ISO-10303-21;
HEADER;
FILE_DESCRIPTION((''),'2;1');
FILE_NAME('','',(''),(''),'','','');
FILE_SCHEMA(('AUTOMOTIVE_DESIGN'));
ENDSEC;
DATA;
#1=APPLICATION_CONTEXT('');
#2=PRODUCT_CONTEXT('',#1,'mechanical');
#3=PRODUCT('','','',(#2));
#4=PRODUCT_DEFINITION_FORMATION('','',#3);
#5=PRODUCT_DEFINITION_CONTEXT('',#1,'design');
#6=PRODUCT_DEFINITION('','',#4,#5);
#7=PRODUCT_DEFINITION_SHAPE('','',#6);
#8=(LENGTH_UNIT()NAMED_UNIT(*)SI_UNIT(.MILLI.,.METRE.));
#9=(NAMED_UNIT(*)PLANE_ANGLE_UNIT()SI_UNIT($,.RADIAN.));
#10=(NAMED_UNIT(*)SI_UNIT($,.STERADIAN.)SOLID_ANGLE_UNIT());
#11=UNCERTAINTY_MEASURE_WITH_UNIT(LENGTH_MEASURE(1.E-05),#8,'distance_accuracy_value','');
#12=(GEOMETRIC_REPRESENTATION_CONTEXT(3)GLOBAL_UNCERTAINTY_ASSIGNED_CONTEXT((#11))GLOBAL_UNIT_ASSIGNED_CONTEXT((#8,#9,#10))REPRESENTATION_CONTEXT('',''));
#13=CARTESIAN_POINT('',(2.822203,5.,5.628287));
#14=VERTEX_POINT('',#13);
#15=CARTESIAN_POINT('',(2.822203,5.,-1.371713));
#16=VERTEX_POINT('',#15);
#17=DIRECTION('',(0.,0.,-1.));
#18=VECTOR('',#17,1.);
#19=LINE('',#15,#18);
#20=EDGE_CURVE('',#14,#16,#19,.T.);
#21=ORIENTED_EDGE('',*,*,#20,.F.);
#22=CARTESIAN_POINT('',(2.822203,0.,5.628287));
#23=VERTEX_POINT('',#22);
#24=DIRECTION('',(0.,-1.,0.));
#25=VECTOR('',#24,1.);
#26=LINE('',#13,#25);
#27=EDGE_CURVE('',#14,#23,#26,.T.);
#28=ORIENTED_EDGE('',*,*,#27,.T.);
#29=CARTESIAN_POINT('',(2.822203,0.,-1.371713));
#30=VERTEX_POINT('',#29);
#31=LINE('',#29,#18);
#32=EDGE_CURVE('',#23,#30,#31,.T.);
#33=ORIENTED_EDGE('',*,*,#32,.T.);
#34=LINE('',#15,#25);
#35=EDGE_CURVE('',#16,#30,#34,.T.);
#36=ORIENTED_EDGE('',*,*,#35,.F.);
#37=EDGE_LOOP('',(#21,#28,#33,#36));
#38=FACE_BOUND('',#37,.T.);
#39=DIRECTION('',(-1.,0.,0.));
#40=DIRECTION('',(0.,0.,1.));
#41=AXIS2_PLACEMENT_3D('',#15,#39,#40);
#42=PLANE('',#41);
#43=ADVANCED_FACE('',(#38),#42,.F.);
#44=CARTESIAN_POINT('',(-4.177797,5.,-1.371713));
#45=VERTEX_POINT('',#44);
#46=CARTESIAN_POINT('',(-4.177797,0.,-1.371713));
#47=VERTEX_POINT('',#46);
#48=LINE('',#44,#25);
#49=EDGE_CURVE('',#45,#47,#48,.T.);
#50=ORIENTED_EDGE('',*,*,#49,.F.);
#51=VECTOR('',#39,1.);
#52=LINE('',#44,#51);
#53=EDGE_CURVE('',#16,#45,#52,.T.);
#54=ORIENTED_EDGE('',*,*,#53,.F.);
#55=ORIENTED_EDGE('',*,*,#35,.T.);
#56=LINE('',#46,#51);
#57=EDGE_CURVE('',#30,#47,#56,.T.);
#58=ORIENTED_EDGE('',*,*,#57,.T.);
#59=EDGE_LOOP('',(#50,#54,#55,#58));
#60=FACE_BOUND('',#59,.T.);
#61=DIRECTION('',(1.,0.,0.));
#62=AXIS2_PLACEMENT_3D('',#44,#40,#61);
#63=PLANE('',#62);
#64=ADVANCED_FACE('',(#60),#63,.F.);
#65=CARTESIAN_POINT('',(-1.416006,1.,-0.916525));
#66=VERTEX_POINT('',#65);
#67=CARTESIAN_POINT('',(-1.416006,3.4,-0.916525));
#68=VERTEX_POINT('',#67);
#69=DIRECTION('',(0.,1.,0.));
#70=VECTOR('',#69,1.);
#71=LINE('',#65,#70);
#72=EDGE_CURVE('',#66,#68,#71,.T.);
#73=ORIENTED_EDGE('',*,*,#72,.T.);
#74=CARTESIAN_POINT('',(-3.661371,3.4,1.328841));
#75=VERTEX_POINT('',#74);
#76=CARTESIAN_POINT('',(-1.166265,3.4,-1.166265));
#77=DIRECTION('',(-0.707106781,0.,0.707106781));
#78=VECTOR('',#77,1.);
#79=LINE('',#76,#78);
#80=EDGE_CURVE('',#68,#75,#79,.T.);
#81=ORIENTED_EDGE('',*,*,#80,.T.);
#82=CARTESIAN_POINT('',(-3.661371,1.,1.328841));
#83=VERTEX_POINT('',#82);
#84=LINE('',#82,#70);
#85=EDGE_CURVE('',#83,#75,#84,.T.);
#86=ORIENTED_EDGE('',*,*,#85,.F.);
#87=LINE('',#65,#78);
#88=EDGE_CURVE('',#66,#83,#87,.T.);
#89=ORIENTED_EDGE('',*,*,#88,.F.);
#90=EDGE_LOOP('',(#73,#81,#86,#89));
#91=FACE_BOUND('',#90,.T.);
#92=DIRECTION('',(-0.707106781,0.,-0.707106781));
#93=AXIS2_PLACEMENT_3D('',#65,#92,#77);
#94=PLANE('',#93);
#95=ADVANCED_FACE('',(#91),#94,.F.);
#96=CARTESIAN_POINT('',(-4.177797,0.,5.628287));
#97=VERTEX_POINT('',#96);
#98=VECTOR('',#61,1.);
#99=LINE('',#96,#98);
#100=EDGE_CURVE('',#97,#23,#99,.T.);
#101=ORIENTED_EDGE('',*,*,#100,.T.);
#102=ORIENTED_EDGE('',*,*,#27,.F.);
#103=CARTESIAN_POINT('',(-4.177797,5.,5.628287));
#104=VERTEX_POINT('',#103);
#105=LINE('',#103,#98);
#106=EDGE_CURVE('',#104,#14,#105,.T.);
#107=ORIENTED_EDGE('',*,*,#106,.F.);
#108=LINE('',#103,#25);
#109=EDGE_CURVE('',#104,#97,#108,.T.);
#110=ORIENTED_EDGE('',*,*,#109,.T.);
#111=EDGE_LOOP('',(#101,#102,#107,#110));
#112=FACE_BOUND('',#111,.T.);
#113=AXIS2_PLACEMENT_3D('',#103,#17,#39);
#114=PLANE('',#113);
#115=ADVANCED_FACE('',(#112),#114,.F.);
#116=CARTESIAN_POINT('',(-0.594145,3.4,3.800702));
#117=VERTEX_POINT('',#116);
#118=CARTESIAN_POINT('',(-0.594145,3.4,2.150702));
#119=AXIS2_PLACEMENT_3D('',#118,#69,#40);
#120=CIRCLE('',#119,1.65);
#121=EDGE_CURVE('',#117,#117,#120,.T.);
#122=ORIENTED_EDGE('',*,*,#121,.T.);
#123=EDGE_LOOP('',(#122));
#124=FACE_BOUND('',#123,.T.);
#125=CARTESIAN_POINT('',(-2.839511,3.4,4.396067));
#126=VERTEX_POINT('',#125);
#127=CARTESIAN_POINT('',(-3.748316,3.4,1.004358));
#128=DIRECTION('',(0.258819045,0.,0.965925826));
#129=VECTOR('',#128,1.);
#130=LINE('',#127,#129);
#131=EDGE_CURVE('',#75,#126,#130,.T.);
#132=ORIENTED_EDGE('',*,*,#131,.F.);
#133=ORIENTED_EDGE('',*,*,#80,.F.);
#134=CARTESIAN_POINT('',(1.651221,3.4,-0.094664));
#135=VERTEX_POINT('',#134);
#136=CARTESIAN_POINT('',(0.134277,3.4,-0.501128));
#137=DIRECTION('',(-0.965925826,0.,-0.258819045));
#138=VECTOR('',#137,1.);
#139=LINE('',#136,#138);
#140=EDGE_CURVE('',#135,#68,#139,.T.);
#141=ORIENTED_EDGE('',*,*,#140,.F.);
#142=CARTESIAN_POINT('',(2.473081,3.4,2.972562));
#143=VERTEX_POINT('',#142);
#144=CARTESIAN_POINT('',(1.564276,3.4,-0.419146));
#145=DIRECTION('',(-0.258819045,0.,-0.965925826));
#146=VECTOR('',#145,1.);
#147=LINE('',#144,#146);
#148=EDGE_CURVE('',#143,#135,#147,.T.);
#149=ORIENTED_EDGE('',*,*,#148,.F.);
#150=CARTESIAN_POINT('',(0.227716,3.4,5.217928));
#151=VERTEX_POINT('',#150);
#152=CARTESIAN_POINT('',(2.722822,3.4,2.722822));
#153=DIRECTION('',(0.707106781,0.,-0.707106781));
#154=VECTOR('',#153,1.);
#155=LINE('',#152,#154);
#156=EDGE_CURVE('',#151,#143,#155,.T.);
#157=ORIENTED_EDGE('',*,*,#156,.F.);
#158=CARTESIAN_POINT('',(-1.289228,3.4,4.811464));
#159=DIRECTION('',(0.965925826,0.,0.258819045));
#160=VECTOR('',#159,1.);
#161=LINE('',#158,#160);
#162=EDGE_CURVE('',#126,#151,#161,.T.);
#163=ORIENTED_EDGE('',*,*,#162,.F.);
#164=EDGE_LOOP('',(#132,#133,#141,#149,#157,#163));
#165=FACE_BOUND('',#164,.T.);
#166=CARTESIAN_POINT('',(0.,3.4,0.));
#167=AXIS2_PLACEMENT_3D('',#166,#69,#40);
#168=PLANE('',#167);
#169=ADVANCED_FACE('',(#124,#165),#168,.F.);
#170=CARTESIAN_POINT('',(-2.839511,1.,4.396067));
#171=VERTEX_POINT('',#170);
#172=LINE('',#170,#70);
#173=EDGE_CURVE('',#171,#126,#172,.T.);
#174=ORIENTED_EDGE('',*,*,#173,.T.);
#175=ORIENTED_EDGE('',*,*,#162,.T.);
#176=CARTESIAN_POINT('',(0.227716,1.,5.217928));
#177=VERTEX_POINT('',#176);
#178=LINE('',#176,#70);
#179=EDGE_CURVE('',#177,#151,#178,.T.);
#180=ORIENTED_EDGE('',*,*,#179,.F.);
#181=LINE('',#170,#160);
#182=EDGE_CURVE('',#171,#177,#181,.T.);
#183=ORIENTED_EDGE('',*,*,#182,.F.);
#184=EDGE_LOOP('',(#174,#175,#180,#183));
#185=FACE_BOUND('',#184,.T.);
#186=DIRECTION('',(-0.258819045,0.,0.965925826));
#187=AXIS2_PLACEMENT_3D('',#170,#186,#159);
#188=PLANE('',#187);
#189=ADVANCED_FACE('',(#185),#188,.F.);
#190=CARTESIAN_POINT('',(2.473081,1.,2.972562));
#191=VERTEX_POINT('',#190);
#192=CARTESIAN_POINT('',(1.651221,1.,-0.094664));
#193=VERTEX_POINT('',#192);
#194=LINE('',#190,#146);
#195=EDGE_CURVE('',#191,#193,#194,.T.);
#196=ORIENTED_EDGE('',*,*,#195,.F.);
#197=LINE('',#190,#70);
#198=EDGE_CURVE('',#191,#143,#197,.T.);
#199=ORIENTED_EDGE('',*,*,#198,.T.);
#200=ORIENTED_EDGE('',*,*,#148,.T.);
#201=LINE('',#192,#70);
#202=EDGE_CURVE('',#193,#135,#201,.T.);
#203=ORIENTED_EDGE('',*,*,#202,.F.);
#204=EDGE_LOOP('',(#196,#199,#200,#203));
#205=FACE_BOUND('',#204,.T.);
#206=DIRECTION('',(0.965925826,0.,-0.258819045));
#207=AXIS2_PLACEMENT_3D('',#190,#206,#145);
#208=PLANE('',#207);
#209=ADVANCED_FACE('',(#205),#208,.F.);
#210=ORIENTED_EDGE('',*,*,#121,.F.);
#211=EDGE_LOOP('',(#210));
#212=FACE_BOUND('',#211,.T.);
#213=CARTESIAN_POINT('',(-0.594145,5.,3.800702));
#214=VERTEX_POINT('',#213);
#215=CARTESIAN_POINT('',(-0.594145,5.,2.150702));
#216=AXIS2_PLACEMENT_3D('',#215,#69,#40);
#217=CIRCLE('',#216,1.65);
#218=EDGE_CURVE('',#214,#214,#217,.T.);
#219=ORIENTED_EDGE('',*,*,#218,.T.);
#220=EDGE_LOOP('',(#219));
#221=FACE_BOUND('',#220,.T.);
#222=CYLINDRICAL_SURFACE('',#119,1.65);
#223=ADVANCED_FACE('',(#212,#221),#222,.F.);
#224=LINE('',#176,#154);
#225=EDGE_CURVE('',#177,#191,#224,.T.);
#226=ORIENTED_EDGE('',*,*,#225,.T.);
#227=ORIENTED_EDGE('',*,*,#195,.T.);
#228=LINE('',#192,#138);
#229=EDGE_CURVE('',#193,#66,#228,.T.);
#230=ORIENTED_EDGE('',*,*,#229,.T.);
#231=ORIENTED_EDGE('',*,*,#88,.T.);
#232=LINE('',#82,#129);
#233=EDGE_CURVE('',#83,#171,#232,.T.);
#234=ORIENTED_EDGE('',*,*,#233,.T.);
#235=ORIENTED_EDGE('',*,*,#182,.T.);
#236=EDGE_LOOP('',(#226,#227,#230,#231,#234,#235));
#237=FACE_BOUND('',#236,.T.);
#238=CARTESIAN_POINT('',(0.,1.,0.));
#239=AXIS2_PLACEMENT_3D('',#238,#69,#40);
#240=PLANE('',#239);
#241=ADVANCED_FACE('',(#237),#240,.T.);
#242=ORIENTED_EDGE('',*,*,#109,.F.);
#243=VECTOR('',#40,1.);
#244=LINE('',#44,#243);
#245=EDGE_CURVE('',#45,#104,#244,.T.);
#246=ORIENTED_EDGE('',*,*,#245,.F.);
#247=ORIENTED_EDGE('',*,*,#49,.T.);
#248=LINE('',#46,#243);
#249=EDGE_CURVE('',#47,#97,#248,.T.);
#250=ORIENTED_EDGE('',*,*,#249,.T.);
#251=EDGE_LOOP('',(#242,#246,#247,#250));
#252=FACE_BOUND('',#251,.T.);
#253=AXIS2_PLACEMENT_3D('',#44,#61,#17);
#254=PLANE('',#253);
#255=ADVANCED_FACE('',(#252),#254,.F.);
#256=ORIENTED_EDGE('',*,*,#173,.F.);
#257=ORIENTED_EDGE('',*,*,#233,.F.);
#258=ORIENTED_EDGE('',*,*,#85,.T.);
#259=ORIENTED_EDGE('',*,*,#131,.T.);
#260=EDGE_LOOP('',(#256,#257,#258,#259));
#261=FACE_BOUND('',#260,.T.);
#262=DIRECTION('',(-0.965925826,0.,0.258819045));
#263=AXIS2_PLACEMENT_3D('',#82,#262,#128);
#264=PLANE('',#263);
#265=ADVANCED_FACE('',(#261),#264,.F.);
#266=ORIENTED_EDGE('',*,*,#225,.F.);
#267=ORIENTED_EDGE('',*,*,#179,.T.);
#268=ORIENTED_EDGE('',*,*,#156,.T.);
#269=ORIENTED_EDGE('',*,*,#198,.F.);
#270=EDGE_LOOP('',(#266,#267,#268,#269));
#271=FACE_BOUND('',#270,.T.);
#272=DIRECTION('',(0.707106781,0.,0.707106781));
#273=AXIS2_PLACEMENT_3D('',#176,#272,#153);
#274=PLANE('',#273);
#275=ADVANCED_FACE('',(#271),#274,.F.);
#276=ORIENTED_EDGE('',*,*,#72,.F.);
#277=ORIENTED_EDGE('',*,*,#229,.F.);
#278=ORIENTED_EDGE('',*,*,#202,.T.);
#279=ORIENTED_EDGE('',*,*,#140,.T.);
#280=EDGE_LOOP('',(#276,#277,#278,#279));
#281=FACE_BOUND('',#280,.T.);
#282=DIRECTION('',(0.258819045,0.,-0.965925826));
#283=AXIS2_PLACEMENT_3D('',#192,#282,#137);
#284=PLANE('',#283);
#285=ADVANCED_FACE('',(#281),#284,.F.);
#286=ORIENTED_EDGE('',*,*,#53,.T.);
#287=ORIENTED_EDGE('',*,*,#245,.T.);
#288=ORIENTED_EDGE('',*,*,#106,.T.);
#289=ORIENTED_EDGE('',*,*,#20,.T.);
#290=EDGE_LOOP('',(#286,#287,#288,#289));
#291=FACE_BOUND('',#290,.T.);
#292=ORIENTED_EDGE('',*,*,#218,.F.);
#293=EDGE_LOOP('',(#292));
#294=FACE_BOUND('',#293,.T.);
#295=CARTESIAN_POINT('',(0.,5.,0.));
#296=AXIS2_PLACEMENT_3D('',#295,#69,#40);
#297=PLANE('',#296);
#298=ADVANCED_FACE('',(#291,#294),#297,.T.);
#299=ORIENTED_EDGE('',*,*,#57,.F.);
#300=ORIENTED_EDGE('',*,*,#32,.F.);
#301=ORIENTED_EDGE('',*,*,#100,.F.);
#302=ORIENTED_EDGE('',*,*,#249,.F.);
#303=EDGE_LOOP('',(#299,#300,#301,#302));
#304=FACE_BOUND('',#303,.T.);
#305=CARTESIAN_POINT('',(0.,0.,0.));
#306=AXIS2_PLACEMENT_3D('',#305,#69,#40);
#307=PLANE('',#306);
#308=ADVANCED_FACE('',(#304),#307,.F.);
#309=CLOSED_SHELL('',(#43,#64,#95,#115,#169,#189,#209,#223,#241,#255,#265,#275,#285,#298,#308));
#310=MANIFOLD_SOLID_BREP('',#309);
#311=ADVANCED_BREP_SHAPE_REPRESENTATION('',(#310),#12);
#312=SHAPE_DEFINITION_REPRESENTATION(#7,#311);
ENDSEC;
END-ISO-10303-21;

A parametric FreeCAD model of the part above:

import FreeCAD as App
import Part
import Sketcher
from FreeCAD import Vector
Q = App.Units.Quantity

doc = App.newDocument("Part")
params = doc.addObject("Spreadsheet::Sheet", "Params")
for row, (alias, value) in enumerate([
    ("sketch1_width", "7 mm"),
    ("pad1_length", "5 mm"),
    ("sketch2_diameter", "3.3 mm"),
    ("pocket1_length", "4 mm"),
    ("sketch3_diameter", "3.3 mm"),
    ("pocket2_length", "4 mm"),
    ("sketch4_diameter", "3.3 mm"),
    ("pad2_length", "1.6 mm"),
], start=1):
    params.set(f"A{row}", alias)
    params.set(f"B{row}", "=" + value)
    params.setAlias(f"B{row}", alias)

body = doc.addObject("PartDesign::Body", "Body")

sketch1 = body.newObject("Sketcher::SketchObject", "Sketch")
sketch1.AttachmentSupport = (doc.getObject("XZ_Plane"), [""])
sketch1.MapMode = "FlatFace"
sketch1.addGeometry(Part.LineSegment(Vector(-4.177797, -1.371713, 0), Vector(-4.177797, 5.628287, 0)), False)
sketch1.addGeometry(Part.LineSegment(Vector(-4.177797, 5.628287, 0), Vector(2.822203, 5.628287, 0)), False)
sketch1.addGeometry(Part.LineSegment(Vector(2.822203, 5.628287, 0), Vector(2.822203, -1.371713, 0)), False)
sketch1.addGeometry(Part.LineSegment(Vector(2.822203, -1.371713, 0), Vector(-4.177797, -1.371713, 0)), False)
sketch1.addConstraint(Sketcher.Constraint("Coincident", 0, 2, 1, 1))
sketch1.addConstraint(Sketcher.Constraint("Coincident", 1, 2, 2, 1))
sketch1.addConstraint(Sketcher.Constraint("Coincident", 2, 2, 3, 1))
sketch1.addConstraint(Sketcher.Constraint("Coincident", 3, 2, 0, 1))
sketch1.addConstraint(Sketcher.Constraint("Vertical", 0))
sketch1.addConstraint(Sketcher.Constraint("Horizontal", 1))
sketch1.addConstraint(Sketcher.Constraint("Vertical", 2))
sketch1.addConstraint(Sketcher.Constraint("Horizontal", 3))
sketch1.addConstraint(Sketcher.Constraint("Equal", 3, 0))
sketch1.addConstraint(Sketcher.Constraint("DistanceX", 1, 1, 1, 2, 7.0))
sketch1.addConstraint(Sketcher.Constraint("DistanceX", 0, 2, -1, 1, 4.177797))
sketch1.addConstraint(Sketcher.Constraint("DistanceY", -1, 1, 0, 2, 5.628287))
sketch1.setExpression("Constraints[9]", "Params.sketch1_width")
pad1 = body.newObject("PartDesign::Pad", "Pad")
pad1.Profile = sketch1
pad1.setExpression("Length", "Params.pad1_length")
pad1.Reversed = True

sketch2 = body.newObject("Sketcher::SketchObject", "Sketch001")
sketch2.AttachmentSupport = (doc.getObject("XZ_Plane"), [""])
sketch2.MapMode = "FlatFace"
sketch2.AttachmentOffset = App.Placement(Vector(0, 0, -5), App.Rotation())
sketch2.addGeometry(Part.LineSegment(Vector(-1.416006, -0.916525, 0), Vector(-3.661371, 1.328841, 0)), False)
sketch2.addGeometry(Part.LineSegment(Vector(-3.661371, 1.328841, 0), Vector(-2.839511, 4.396067, 0)), False)
sketch2.addGeometry(Part.LineSegment(Vector(-2.839511, 4.396067, 0), Vector(0.227716, 5.217928, 0)), False)
sketch2.addGeometry(Part.LineSegment(Vector(0.227716, 5.217928, 0), Vector(2.473081, 2.972562, 0)), False)
sketch2.addGeometry(Part.LineSegment(Vector(2.473081, 2.972562, 0), Vector(1.651221, -0.094664, 0)), False)
sketch2.addGeometry(Part.LineSegment(Vector(1.651221, -0.094664, 0), Vector(-1.416006, -0.916525, 0)), False)
sketch2.addGeometry(Part.Circle(Vector(-0.594145, 2.150702, 0), Vector(0, 0, 1), 1.65), False)
sketch2.addConstraint(Sketcher.Constraint("Coincident", 0, 2, 1, 1))
sketch2.addConstraint(Sketcher.Constraint("Coincident", 1, 2, 2, 1))
sketch2.addConstraint(Sketcher.Constraint("Coincident", 2, 2, 3, 1))
sketch2.addConstraint(Sketcher.Constraint("Coincident", 3, 2, 4, 1))
sketch2.addConstraint(Sketcher.Constraint("Coincident", 4, 2, 5, 1))
sketch2.addConstraint(Sketcher.Constraint("Coincident", 5, 2, 0, 1))
sketch2.addConstraint(Sketcher.Constraint("Parallel", 0, 3))
sketch2.addConstraint(Sketcher.Constraint("Parallel", 1, 4))
sketch2.addConstraint(Sketcher.Constraint("Parallel", 2, 5))
sketch2.addConstraint(Sketcher.Constraint("Equal", 0, 1))
sketch2.addConstraint(Sketcher.Constraint("Equal", 1, 2))
sketch2.addConstraint(Sketcher.Constraint("Equal", 2, 3))
sketch2.addConstraint(Sketcher.Constraint("Diameter", 6, 3.3))
sketch2.addConstraint(Sketcher.Constraint("Angle", 0, Q("135 deg")))
sketch2.addConstraint(Sketcher.Constraint("Angle", 1, Q("75 deg")))
sketch2.addConstraint(Sketcher.Constraint("Angle", 2, Q("15 deg")))
sketch2.addConstraint(Sketcher.Constraint("DistanceY", -1, 1, 6, 3, 2.150702))
sketch2.addConstraint(Sketcher.Constraint("DistanceX", 0, 2, -1, 1, 3.661371))
sketch2.addConstraint(Sketcher.Constraint("DistanceY", -1, 1, 0, 2, 1.328841))
sketch2.addConstraint(Sketcher.Constraint("DistanceX", 1, 2, -1, 1, 2.839511))
sketch2.addConstraint(Sketcher.Constraint("DistanceX", 6, 3, 2, 2, 0.821861))
sketch2.setExpression("Constraints[12]", "Params.sketch2_diameter")
pocket1 = body.newObject("PartDesign::Pocket", "Pocket")
pocket1.Profile = sketch2
pocket1.setExpression("Length", "Params.pocket1_length")
pocket1.Reversed = True

sketch3 = body.newObject("Sketcher::SketchObject", "Sketch002")
sketch3.AttachmentSupport = (doc.getObject("XZ_Plane"), [""])
sketch3.MapMode = "FlatFace"
sketch3.AttachmentOffset = App.Placement(Vector(0, 0, -5), App.Rotation())
sketch3.addGeometry(Part.Circle(Vector(-0.594145, 2.150702, 0), Vector(0, 0, 1), 1.65), False)
sketch3.addConstraint(Sketcher.Constraint("Diameter", 0, 3.3))
sketch3.addConstraint(Sketcher.Constraint("DistanceY", -1, 1, 0, 3, 2.150702))
sketch3.addConstraint(Sketcher.Constraint("DistanceX", 0, 3, -1, 1, 0.594145))
sketch3.setExpression("Constraints[0]", "Params.sketch3_diameter")
pocket2 = body.newObject("PartDesign::Pocket", "Pocket001")
pocket2.Profile = sketch3
pocket2.setExpression("Length", "Params.pocket2_length")
pocket2.Reversed = True

sketch4 = body.newObject("Sketcher::SketchObject", "Sketch003")
sketch4.AttachmentSupport = (doc.getObject("XZ_Plane"), [""])
sketch4.MapMode = "FlatFace"
sketch4.AttachmentOffset = App.Placement(Vector(0, 0, -5), App.Rotation())
sketch4.addGeometry(Part.LineSegment(Vector(1.651221, -0.094664, 0), Vector(-1.416006, -0.916525, 0)), False)
sketch4.addGeometry(Part.LineSegment(Vector(-1.416006, -0.916525, 0), Vector(-3.661371, 1.328841, 0)), False)
sketch4.addGeometry(Part.LineSegment(Vector(-3.661371, 1.328841, 0), Vector(-2.839511, 4.396067, 0)), False)
sketch4.addGeometry(Part.LineSegment(Vector(-2.839511, 4.396067, 0), Vector(0.227716, 5.217928, 0)), False)
sketch4.addGeometry(Part.LineSegment(Vector(0.227716, 5.217928, 0), Vector(2.473081, 2.972562, 0)), False)
sketch4.addGeometry(Part.LineSegment(Vector(2.473081, 2.972562, 0), Vector(1.651221, -0.094664, 0)), False)
sketch4.addGeometry(Part.Circle(Vector(-0.594145, 2.150702, 0), Vector(0, 0, 1), 1.65), False)
sketch4.addConstraint(Sketcher.Constraint("Coincident", 0, 2, 1, 1))
sketch4.addConstraint(Sketcher.Constraint("Coincident", 1, 2, 2, 1))
sketch4.addConstraint(Sketcher.Constraint("Coincident", 2, 2, 3, 1))
sketch4.addConstraint(Sketcher.Constraint("Coincident", 3, 2, 4, 1))
sketch4.addConstraint(Sketcher.Constraint("Coincident", 4, 2, 5, 1))
sketch4.addConstraint(Sketcher.Constraint("Coincident", 5, 2, 0, 1))
sketch4.addConstraint(Sketcher.Constraint("Parallel", 0, 3))
sketch4.addConstraint(Sketcher.Constraint("Parallel", 1, 4))
sketch4.addConstraint(Sketcher.Constraint("Parallel", 2, 5))
sketch4.addConstraint(Sketcher.Constraint("Equal", 0, 1))
sketch4.addConstraint(Sketcher.Constraint("Equal", 1, 2))
sketch4.addConstraint(Sketcher.Constraint("Equal", 2, 3))
sketch4.addConstraint(Sketcher.Constraint("Diameter", 6, 3.3))
sketch4.addConstraint(Sketcher.Constraint("Angle", 0, Q("-165 deg")))
sketch4.addConstraint(Sketcher.Constraint("Angle", 1, Q("135 deg")))
sketch4.addConstraint(Sketcher.Constraint("Angle", 2, Q("75 deg")))
sketch4.addConstraint(Sketcher.Constraint("DistanceY", -1, 1, 6, 3, 2.150702))
sketch4.addConstraint(Sketcher.Constraint("DistanceX", 1, 2, -1, 1, 3.661371))
sketch4.addConstraint(Sketcher.Constraint("DistanceY", -1, 1, 1, 2, 1.328841))
sketch4.addConstraint(Sketcher.Constraint("DistanceX", 2, 2, -1, 1, 2.839511))
sketch4.addConstraint(Sketcher.Constraint("DistanceX", 0, 2, 6, 3, 0.821861))
sketch4.setExpression("Constraints[12]", "Params.sketch4_diameter")
pad2 = body.newObject("PartDesign::Pad", "Pad001")
pad2.Profile = sketch4
pad2.setExpression("Length", "Params.pad2_length")

doc.recompute()
